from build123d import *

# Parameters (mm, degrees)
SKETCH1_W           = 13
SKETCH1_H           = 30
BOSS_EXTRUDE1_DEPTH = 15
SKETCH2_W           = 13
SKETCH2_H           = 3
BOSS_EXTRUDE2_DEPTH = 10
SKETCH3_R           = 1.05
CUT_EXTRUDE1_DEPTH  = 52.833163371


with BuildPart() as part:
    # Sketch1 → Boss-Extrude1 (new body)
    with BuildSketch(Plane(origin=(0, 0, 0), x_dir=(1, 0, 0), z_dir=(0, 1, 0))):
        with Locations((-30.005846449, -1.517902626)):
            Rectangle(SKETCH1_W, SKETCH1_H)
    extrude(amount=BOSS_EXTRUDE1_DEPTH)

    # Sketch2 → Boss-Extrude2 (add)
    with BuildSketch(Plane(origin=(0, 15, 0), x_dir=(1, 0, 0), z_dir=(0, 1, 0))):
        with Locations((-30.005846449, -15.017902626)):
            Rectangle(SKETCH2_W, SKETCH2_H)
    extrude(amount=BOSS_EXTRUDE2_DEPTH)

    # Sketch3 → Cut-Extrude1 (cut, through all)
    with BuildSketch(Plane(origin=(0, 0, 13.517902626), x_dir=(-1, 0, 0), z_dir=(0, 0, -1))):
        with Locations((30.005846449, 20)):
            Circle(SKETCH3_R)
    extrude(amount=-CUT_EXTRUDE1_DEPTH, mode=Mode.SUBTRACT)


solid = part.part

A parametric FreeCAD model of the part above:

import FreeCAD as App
import Part
import Sketcher

V = App.Vector

doc = App.newDocument("Part")
body = doc.addObject("PartDesign::Body", "Body")

# Sketch on XZ plane
sketch1 = body.newObject("Sketcher::SketchObject", "Sketch")
sketch1.AttachmentSupport = (doc.getObject("XZ_Plane"), [""])
sketch1.MapMode = "FlatFace"
sketch1.addGeometry(Part.LineSegment(V(-36.505846, -13.482097, 0), V(-36.505846, 16.517903, 0)), False)
sketch1.addGeometry(Part.LineSegment(V(-36.505846, 16.517903, 0), V(-23.505846, 16.517903, 0)), False)
sketch1.addGeometry(Part.LineSegment(V(-23.505846, 16.517903, 0), V(-23.505846, -13.482097, 0)), False)
sketch1.addGeometry(Part.LineSegment(V(-23.505846, -13.482097, 0), V(-36.505846, -13.482097, 0)), False)
sketch1.addConstraint(Sketcher.Constraint("Coincident", 0, 2, 1, 1))
sketch1.addConstraint(Sketcher.Constraint("Coincident", 1, 2, 2, 1))
sketch1.addConstraint(Sketcher.Constraint("Coincident", 2, 2, 3, 1))
sketch1.addConstraint(Sketcher.Constraint("Coincident", 3, 2, 0, 1))
sketch1.addConstraint(Sketcher.Constraint("Vertical", 0))
sketch1.addConstraint(Sketcher.Constraint("Horizontal", 1))
sketch1.addConstraint(Sketcher.Constraint("Vertical", 2))
sketch1.addConstraint(Sketcher.Constraint("Horizontal", 3))
sketch1.addConstraint(Sketcher.Constraint("DistanceX", 1, 1, 1, 2, 13.0))
sketch1.addConstraint(Sketcher.Constraint("DistanceY", 0, 1, 0, 2, 30.0))
sketch1.addConstraint(Sketcher.Constraint("DistanceX", 0, 2, -1, 1, 36.505846))
sketch1.addConstraint(Sketcher.Constraint("DistanceY", -1, 1, 0, 2, 16.517903))
pad1 = body.newObject("PartDesign::Pad", "Pad")
pad1.Profile = sketch1
pad1.Length = 15
pad1.Reversed = True

# Sketch on XZ plane
sketch2 = body.newObject("Sketcher::SketchObject", "Sketch001")
sketch2.AttachmentSupport = (doc.getObject("XZ_Plane"), [""])
sketch2.MapMode = "FlatFace"
sketch2.AttachmentOffset = App.Placement(V(0, 0, -15), App.Rotation())
sketch2.addGeometry(Part.LineSegment(V(-36.505846, 13.517903, 0), V(-36.505846, 16.517903, 0)), False)
sketch2.addGeometry(Part.LineSegment(V(-36.505846, 16.517903, 0), V(-23.505846, 16.517903, 0)), False)
sketch2.addGeometry(Part.LineSegment(V(-23.505846, 16.517903, 0), V(-23.505846, 13.517903, 0)), False)
sketch2.addGeometry(Part.LineSegment(V(-23.505846, 13.517903, 0), V(-36.505846, 13.517903, 0)), False)
sketch2.addConstraint(Sketcher.Constraint("Coincident", 0, 2, 1, 1))
sketch2.addConstraint(Sketcher.Constraint("Coincident", 1, 2, 2, 1))
sketch2.addConstraint(Sketcher.Constraint("Coincident", 2, 2, 3, 1))
sketch2.addConstraint(Sketcher.Constraint("Coincident", 3, 2, 0, 1))
sketch2.addConstraint(Sketcher.Constraint("Vertical", 0))
sketch2.addConstraint(Sketcher.Constraint("Horizontal", 1))
sketch2.addConstraint(Sketcher.Constraint("Vertical", 2))
sketch2.addConstraint(Sketcher.Constraint("Horizontal", 3))
sketch2.addConstraint(Sketcher.Constraint("DistanceX", 1, 1, 1, 2, 13.0))
sketch2.addConstraint(Sketcher.Constraint("DistanceY", 0, 1, 0, 2, 3.0))
sketch2.addConstraint(Sketcher.Constraint("DistanceX", 0, 2, -1, 1, 36.505846))
sketch2.addConstraint(Sketcher.Constraint("DistanceY", -1, 1, 0, 2, 16.517903))
pad2 = body.newObject("PartDesign::Pad", "Pad001")
pad2.Profile = sketch2
pad2.Length = 10
pad2.Reversed = True

# Sketch on XY plane
sketch3 = body.newObject("Sketcher::SketchObject", "Sketch002")
sketch3.AttachmentSupport = (doc.getObject("XY_Plane"), [""])
sketch3.MapMode = "FlatFace"
sketch3.AttachmentOffset = App.Placement(V(0, 0, 13.517903), App.Rotation())
sketch3.addGeometry(Part.Circle(V(-30.005846, 20, 0), V(0, 0, 1), 1.05), False)
sketch3.addConstraint(Sketcher.Constraint("Diameter", 0, 2.1))
sketch3.addConstraint(Sketcher.Constraint("DistanceY", -1, 1, 0, 3, 20.0))
sketch3.addConstraint(Sketcher.Constraint("DistanceX", 0, 3, -1, 1, 30.005846))
pocket1 = body.newObject("PartDesign::Pocket", "Pocket")
pocket1.Profile = sketch3
pocket1.Type = "ThroughAll"
pocket1.Reversed = True

doc.recompute()
